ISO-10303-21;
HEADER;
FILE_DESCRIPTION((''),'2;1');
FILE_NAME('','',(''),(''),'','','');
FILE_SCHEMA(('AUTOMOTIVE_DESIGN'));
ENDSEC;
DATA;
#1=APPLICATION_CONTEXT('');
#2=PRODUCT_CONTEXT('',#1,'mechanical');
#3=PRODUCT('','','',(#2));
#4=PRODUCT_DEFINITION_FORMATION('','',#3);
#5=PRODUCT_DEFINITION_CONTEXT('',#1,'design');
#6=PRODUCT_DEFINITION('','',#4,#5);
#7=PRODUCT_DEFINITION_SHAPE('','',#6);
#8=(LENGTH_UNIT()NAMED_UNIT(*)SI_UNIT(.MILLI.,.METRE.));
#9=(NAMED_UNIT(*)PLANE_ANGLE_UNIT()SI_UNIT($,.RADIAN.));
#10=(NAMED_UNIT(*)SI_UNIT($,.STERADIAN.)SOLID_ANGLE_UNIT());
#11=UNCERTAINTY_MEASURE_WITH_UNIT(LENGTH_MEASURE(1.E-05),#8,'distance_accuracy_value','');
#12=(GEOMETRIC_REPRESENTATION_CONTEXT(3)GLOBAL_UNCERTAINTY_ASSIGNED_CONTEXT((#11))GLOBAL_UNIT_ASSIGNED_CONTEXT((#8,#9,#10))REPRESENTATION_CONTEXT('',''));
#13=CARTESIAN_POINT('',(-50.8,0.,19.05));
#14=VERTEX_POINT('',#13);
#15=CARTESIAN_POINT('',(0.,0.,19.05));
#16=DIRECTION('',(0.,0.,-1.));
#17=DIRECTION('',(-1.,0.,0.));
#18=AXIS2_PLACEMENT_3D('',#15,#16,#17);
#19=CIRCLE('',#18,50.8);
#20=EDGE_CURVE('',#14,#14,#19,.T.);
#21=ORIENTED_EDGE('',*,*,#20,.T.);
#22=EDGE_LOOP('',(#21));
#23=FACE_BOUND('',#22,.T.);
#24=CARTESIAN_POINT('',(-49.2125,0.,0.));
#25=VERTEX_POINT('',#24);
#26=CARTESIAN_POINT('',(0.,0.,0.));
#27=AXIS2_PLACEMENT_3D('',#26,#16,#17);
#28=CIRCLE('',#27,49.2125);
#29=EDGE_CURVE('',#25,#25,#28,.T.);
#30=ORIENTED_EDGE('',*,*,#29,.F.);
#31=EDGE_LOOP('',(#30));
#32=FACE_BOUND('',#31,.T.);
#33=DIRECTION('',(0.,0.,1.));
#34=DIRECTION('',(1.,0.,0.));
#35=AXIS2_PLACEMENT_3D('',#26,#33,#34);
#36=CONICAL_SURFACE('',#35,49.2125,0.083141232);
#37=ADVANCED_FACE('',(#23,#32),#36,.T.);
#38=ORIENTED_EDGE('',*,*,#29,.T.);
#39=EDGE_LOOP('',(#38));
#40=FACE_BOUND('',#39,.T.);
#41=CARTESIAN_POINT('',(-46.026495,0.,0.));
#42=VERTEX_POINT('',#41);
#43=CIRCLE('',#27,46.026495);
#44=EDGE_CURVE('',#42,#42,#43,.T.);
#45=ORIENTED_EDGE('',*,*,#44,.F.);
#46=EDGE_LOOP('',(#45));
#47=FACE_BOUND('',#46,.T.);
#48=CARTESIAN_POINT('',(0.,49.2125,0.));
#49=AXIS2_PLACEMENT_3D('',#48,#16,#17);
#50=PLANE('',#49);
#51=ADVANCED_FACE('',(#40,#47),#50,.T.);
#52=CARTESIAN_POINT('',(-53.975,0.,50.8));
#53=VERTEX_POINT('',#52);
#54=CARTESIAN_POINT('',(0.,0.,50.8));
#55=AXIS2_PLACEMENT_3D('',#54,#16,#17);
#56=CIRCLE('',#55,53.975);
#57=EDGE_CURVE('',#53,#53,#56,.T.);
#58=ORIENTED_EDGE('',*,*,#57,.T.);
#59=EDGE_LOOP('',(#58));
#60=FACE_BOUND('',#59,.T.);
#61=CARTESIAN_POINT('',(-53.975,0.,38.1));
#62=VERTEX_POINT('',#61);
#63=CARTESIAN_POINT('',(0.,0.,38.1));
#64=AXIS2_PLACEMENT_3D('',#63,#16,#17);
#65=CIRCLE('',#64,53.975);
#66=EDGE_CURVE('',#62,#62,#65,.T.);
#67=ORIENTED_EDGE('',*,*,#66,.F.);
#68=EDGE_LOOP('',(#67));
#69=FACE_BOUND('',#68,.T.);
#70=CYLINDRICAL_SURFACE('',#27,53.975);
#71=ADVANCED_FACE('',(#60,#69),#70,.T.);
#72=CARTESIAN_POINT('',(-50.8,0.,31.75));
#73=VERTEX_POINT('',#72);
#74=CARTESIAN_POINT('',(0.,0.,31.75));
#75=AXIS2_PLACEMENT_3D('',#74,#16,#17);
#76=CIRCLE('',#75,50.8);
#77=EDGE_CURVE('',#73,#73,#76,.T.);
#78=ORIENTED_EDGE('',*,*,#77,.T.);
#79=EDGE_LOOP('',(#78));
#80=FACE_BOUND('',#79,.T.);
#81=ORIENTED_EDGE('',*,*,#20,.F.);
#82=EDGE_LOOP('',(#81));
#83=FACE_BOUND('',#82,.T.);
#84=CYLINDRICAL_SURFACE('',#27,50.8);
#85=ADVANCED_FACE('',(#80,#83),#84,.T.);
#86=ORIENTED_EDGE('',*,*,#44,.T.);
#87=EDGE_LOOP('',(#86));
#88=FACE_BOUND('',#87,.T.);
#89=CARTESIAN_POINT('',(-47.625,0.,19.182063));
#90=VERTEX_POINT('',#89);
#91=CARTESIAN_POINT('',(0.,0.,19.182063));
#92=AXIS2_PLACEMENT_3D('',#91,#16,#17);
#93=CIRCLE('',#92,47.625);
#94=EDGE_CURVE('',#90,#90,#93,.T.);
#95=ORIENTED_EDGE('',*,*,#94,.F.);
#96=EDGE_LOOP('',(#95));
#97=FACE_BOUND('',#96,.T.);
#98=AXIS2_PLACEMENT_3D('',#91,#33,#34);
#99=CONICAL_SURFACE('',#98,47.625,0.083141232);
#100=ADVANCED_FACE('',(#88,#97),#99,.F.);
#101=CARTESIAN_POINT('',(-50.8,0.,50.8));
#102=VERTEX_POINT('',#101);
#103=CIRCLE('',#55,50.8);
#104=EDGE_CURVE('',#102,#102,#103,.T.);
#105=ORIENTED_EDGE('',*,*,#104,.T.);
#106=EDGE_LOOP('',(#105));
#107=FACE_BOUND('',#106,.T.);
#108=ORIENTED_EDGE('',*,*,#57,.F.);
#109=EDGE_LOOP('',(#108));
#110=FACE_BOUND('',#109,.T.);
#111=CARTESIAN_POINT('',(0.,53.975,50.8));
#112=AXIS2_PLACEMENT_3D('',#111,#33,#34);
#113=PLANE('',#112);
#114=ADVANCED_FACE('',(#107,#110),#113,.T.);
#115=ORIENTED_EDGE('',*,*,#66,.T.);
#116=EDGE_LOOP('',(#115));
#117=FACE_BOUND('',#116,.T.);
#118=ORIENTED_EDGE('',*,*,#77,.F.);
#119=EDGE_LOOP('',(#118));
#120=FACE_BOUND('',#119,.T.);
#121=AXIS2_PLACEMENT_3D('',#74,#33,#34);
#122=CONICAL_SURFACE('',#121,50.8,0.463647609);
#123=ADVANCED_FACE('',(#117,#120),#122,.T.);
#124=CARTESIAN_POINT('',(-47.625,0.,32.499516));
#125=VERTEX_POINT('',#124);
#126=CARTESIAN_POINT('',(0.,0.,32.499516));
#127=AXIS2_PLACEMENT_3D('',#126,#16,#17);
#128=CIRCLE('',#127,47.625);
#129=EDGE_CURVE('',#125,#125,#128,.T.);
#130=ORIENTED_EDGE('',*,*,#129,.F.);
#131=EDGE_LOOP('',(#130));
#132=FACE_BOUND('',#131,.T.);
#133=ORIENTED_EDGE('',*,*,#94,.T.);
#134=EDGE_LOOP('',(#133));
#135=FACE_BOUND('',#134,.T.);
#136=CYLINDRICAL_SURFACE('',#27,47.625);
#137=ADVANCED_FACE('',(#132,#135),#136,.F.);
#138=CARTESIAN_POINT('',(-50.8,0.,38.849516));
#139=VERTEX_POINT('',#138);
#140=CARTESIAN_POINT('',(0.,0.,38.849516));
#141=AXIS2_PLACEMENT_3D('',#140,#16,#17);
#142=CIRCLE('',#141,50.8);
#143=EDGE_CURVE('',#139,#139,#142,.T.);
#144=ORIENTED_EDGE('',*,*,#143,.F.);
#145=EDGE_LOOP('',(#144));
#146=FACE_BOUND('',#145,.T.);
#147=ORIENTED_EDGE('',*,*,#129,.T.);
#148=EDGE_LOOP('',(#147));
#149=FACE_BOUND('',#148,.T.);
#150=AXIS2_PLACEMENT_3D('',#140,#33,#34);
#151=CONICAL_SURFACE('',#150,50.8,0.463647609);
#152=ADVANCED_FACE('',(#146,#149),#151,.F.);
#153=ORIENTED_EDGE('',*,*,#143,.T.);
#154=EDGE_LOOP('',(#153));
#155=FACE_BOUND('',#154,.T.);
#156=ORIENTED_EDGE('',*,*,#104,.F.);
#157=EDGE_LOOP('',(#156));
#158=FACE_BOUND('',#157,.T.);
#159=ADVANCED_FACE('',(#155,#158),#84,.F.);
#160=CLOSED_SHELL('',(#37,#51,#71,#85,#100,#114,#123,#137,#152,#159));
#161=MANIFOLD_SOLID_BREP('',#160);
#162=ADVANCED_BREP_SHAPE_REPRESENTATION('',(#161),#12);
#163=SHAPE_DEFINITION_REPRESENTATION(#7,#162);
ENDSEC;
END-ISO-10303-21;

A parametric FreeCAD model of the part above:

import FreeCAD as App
import Part
import Sketcher
from FreeCAD import Vector
Q = App.Units.Quantity


def add_polygon(sketch, points):
    """Adds a closed chain of lines whose ends are joined by coincident constraints."""
    first, n = sketch.GeometryCount, len(points)
    for a, b in zip(points, points[1:] + points[:1]):
        sketch.addGeometry(Part.LineSegment(App.Vector(*a, 0), App.Vector(*b, 0)), False)
    for i in range(n):
        sketch.addConstraint(Sketcher.Constraint("Coincident", first + i, 2, first + (i + 1) % n, 1))

doc = App.newDocument("Part")
body = doc.addObject("PartDesign::Body", "Body")

# Sketch on YZ plane
sketch1 = doc.addObject("Sketcher::SketchObject", "Sketch")
body.addObject(sketch1)
sketch1.AttachmentSupport = (doc.YZ_Plane, [""])
sketch1.MapMode = "FlatFace"
add_polygon(sketch1, [(50.8, 38.8), (47.6, 32.5), (47.6, 19.2), (46, 0), (49.2, 0), (50.8, 19.1), (50.8, 31.8), (54, 38.1), (54, 50.8), (50.8, 50.8)])  # lines 0-9
sketch1.addConstraint(Sketcher.Constraint("Vertical", 1))
sketch1.addConstraint(Sketcher.Constraint("Horizontal", 3))
sketch1.addConstraint(Sketcher.Constraint("Vertical", 5))
sketch1.addConstraint(Sketcher.Constraint("Vertical", 7))
sketch1.addConstraint(Sketcher.Constraint("Horizontal", 8))
sketch1.addConstraint(Sketcher.Constraint("Vertical", 9))
sketch1.addConstraint(Sketcher.Constraint("PointOnObject", 2, 2, -1))
sketch1.addConstraint(Sketcher.Constraint("Parallel", 2, 4))
sketch1.addConstraint(Sketcher.Constraint("Parallel", 0, 6))
sketch1.addConstraint(Sketcher.Constraint("Vertical", 5, 2, 8, 2))
sketch1.addConstraint(Sketcher.Constraint("Equal", 5, 7))
sketch1.addConstraint(Sketcher.Constraint("Equal", 0, 6))
sketch1.addConstraint(Sketcher.Constraint("DistanceY", 5, 1, 5, 2, Q("0.5 in")))
sketch1.addConstraint(Sketcher.Constraint("DistanceX", -1, 1, 4, 2, Q("2 in")))
sketch1.addConstraint(Sketcher.Constraint("DistanceY", -1, 1, 7, 2, Q("2 in")))
sketch1.addConstraint(Sketcher.Constraint("DistanceX", 8, 2, 8, 1, Q("0.125 in")))
sketch1.addConstraint(Sketcher.Constraint("DistanceY", -1, 1, 4, 2, Q("0.75 in")))
sketch1.addConstraint(Sketcher.Constraint("DistanceX", -1, 1, 3, 2, Q("1.9375 in")))
sketch1.addConstraint(Sketcher.Constraint("Distance", 2, 19.248552))
sketch1.addConstraint(Sketcher.Constraint("DistanceY", 1, 2, 1, 1, 13.317453))
revolution = doc.addObject("PartDesign::Revolution", "Revolution")
body.addObject(revolution)
revolution.Profile = sketch1
revolution.ReferenceAxis = (sketch1, ["V_Axis"])
revolution.Angle = 360

doc.recompute()
